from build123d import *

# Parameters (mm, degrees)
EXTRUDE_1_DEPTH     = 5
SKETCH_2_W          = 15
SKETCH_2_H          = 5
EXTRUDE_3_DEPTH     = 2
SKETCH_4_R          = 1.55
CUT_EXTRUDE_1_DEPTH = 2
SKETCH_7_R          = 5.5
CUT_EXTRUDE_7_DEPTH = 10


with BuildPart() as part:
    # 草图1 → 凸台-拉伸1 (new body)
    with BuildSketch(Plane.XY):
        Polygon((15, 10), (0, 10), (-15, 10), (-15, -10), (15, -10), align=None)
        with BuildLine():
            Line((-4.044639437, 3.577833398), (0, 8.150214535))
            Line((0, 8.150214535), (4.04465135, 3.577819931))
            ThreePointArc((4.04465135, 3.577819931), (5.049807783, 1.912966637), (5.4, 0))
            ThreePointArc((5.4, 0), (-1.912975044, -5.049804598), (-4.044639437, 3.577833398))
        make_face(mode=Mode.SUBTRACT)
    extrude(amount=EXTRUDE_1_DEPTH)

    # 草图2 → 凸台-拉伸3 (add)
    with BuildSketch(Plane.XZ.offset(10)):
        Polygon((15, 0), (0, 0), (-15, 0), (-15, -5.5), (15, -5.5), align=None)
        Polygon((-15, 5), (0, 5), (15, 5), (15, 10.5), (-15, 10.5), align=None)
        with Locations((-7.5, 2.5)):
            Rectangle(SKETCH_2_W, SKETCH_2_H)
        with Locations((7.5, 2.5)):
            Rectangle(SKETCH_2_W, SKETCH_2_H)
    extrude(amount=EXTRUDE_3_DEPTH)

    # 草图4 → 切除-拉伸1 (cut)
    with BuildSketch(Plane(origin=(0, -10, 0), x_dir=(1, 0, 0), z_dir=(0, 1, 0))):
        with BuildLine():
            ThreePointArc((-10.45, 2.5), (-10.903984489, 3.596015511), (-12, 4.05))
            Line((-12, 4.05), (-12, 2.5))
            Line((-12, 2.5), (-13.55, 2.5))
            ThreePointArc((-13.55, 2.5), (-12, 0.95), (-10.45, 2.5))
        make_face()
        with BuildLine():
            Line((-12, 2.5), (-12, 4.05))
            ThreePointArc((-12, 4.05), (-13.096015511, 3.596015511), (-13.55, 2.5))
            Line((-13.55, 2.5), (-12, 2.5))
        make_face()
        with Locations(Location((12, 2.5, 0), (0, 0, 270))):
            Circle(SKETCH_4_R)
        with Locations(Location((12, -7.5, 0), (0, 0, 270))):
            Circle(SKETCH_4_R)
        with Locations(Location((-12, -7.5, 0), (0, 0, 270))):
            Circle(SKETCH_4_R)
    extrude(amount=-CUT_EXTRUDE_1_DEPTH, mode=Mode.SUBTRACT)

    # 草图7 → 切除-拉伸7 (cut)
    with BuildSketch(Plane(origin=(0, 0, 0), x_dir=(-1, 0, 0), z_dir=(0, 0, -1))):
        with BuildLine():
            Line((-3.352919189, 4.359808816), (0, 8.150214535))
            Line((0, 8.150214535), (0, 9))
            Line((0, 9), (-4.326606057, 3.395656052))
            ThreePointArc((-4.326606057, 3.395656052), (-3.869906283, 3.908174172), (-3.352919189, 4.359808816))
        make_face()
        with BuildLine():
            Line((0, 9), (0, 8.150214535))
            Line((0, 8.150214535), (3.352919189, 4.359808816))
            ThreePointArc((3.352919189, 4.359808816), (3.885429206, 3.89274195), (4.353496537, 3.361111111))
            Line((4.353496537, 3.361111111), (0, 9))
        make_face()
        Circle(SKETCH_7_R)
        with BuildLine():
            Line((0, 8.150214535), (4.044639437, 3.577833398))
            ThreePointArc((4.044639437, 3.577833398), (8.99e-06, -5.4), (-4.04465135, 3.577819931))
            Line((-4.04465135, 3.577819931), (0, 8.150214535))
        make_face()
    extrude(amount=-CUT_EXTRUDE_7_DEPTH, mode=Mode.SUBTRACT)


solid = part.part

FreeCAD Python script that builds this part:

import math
import FreeCAD as App
import Part
import Sketcher

V = App.Vector
Q = App.Units.Quantity

doc = App.newDocument("Part")
body = doc.addObject("PartDesign::Body", "Body")

sketch1 = doc.addObject("Sketcher::SketchObject", "Sketch")
body.addObject(sketch1)
sketch1.AttachmentSupport = (doc.XY_Plane, [""])
sketch1.MapMode = "FlatFace"
sketch1.addGeometry([
    Part.LineSegment(V(15, 10, 0), V(-15, 10, 0)),
    Part.LineSegment(V(-15, 10, 0), V(-15, -10, 0)),
    Part.LineSegment(V(-15, -10, 0), V(15, -10, 0)),
    Part.LineSegment(V(15, -10, 0), V(15, 10, 0)),
    Part.ArcOfCircle(Part.Circle(V(0, 0, 0), V(0, 0, 1), 5.4), math.radians(138.50446), math.radians(360)),
    Part.LineSegment(V(-4.044639, 3.577833, 0), V(0, 8.150215, 0)),
    Part.LineSegment(V(0, 8.150215, 0), V(4.044651, 3.57782, 0)),
    Part.ArcOfCircle(Part.Circle(V(0, 0, 0), V(0, 0, 1), 5.4), math.radians(0), math.radians(41.495349)),
], False)
sketch1.addConstraint([
    Sketcher.Constraint("Coincident", 0, 2, 1, 1),
    Sketcher.Constraint("Coincident", 1, 2, 2, 1),
    Sketcher.Constraint("Coincident", 2, 2, 3, 1),
    Sketcher.Constraint("Coincident", 3, 2, 0, 1),
    Sketcher.Constraint("Coincident", 4, 1, 5, 1),
    Sketcher.Constraint("Coincident", 5, 2, 6, 1),
    Sketcher.Constraint("Tangent", 6, 2, 7, 2),
    Sketcher.Constraint("Tangent", 7, 1, 4, 2),
    Sketcher.Constraint("Horizontal", 0),
    Sketcher.Constraint("Vertical", 1),
    Sketcher.Constraint("Horizontal", 2),
    Sketcher.Constraint("Vertical", 3),
    Sketcher.Constraint("Coincident", 4, 3, -1, 1),
    Sketcher.Constraint("Equal", 4, 7),
    Sketcher.Constraint("Symmetric", 0, 2, 2, 2, -1, 1),
    Sketcher.Constraint("PointOnObject", 5, 2, -2),
    Sketcher.Constraint("PointOnObject", 7, 1, -1),
    Sketcher.Constraint("Radius", 4, Q("5.4 mm")),
    Sketcher.Constraint("DistanceX", 0, 2, 0, 1, Q("30 mm")),
    Sketcher.Constraint("DistanceY", 1, 2, 1, 1, Q("20 mm")),
    Sketcher.Constraint("Distance", 5, Q("6.10457 mm")),
    Sketcher.Constraint("Distance", 6, Q("6.104588 mm")),
])
pad1 = doc.addObject("PartDesign::Pad", "Pad")
body.addObject(pad1)
pad1.Profile = sketch1
pad1.Length = 5

sketch2 = doc.addObject("Sketcher::SketchObject", "Sketch001")
body.addObject(sketch2)
sketch2.AttachmentSupport = (doc.XZ_Plane, [""])
sketch2.MapMode = "FlatFace"
sketch2.AttachmentOffset = App.Placement(V(0, 0, 10), App.Rotation())
sketch2.addGeometry([
    Part.LineSegment(V(15, 10.5, 0), V(-15, 10.5, 0)),
    Part.LineSegment(V(-15, 10.5, 0), V(-15, -5.5, 0)),
    Part.LineSegment(V(-15, -5.5, 0), V(15, -5.5, 0)),
    Part.LineSegment(V(15, -5.5, 0), V(15, 10.5, 0)),
], False)
sketch2.addConstraint([
    Sketcher.Constraint("Coincident", 0, 2, 1, 1),
    Sketcher.Constraint("Coincident", 1, 2, 2, 1),
    Sketcher.Constraint("Coincident", 2, 2, 3, 1),
    Sketcher.Constraint("Coincident", 3, 2, 0, 1),
    Sketcher.Constraint("Horizontal", 0),
    Sketcher.Constraint("Vertical", 1),
    Sketcher.Constraint("Horizontal", 2),
    Sketcher.Constraint("Vertical", 3),
    Sketcher.Constraint("DistanceX", 0, 2, 0, 1, Q("30 mm")),
    Sketcher.Constraint("DistanceY", 1, 2, 1, 1, Q("16 mm")),
    Sketcher.Constraint("DistanceX", 0, 2, -1, 1, Q("15 mm")),
    Sketcher.Constraint("DistanceY", -1, 1, 0, 2, Q("10.5 mm")),
])
pad2 = doc.addObject("PartDesign::Pad", "Pad001")
body.addObject(pad2)
pad2.Profile = sketch2
pad2.Length = 2

sketch3 = doc.addObject("Sketcher::SketchObject", "Sketch002")
body.addObject(sketch3)
sketch3.AttachmentSupport = (doc.XZ_Plane, [""])
sketch3.MapMode = "FlatFace"
sketch3.AttachmentOffset = App.Placement(V(0, 0, 10), App.Rotation())
sketch3.addGeometry([
    Part.ArcOfCircle(Part.Circle(V(-12, -2.5, 0), V(0, 0, 1), 1.55), math.radians(-90), math.radians(0)),
    Part.ArcOfCircle(Part.Circle(V(-12, -2.5, 0), V(0, 0, 1), 1.55), math.radians(180), math.radians(270)),
    Part.ArcOfCircle(Part.Circle(V(-12, -2.5, 0), V(0, 0, 1), 1.55), math.radians(0), math.radians(180)),
    Part.Circle(V(12, -2.5, 0), V(0, 0, 1), 1.55),
    Part.Circle(V(12, 7.5, 0), V(0, 0, 1), 1.55),
    Part.Circle(V(-12, 7.5, 0), V(0, 0, 1), 1.55),
], False)
sketch3.addConstraint([
    Sketcher.Constraint("Tangent", 0, 1, 1, 2),
    Sketcher.Constraint("Tangent", 1, 1, 2, 2),
    Sketcher.Constraint("Tangent", 2, 1, 0, 2),
    Sketcher.Constraint("Equal", 2, 3),
    Sketcher.Constraint("Equal", 3, 4),
    Sketcher.Constraint("Equal", 4, 5),
    Sketcher.Constraint("Symmetric", 0, 3, 3, 3, -2),
    Sketcher.Constraint("Symmetric", 4, 3, 5, 3, -2),
    Sketcher.Constraint("Horizontal", 3, 3, 1, 1),
    Sketcher.Constraint("Horizontal", 1, 1, 2, 1),
    Sketcher.Constraint("Vertical", 3, 3, 4, 3),
    Sketcher.Constraint("Vertical", 5, 3, 0, 1),
    Sketcher.Constraint("Diameter", 3, Q("3.1 mm")),
    Sketcher.Constraint("DistanceX", 0, 3, -1, 1, Q("12 mm")),
    Sketcher.Constraint("DistanceY", 3, 3, 4, 3, Q("10 mm")),
    Sketcher.Constraint("DistanceY", 0, 3, -1, 1, Q("2.5 mm")),
])
pocket1 = doc.addObject("PartDesign::Pocket", "Pocket")
body.addObject(pocket1)
pocket1.Profile = sketch3
pocket1.Length = 2
pocket1.Reversed = True

sketch4 = doc.addObject("Sketcher::SketchObject", "Sketch003")
body.addObject(sketch4)
sketch4.AttachmentSupport = (doc.XY_Plane, [""])
sketch4.MapMode = "FlatFace"
sketch4.addGeometry([
    Part.LineSegment(V(-4.353497, 3.361111, 0), V(0, 9, 0)),
    Part.LineSegment(V(0, 9, 0), V(4.326606, 3.395656, 0)),
    Part.ArcOfCircle(Part.Circle(V(0, 0, 0), V(0, 0, 1), 5.5), math.radians(142.330113), math.radians(398.125934)),
], False)
sketch4.addConstraint([
    Sketcher.Constraint("Coincident", 0, 2, 1, 1),
    Sketcher.Constraint("Coincident", 1, 2, 2, 2),
    Sketcher.Constraint("Tangent", 2, 1, 0, 1),
    Sketcher.Constraint("Coincident", 2, 3, -1, 1),
    Sketcher.Constraint("PointOnObject", 0, 2, -2),
    Sketcher.Constraint("Radius", 2, Q("5.5 mm")),
    Sketcher.Constraint("DistanceY", -1, 1, 0, 2, Q("9 mm")),
    Sketcher.Constraint("Distance", 1, Q("7.080126 mm")),
])
pocket2 = doc.addObject("PartDesign::Pocket", "Pocket001")
body.addObject(pocket2)
pocket2.Profile = sketch4
pocket2.Length = 10
pocket2.Reversed = True

doc.recompute()
